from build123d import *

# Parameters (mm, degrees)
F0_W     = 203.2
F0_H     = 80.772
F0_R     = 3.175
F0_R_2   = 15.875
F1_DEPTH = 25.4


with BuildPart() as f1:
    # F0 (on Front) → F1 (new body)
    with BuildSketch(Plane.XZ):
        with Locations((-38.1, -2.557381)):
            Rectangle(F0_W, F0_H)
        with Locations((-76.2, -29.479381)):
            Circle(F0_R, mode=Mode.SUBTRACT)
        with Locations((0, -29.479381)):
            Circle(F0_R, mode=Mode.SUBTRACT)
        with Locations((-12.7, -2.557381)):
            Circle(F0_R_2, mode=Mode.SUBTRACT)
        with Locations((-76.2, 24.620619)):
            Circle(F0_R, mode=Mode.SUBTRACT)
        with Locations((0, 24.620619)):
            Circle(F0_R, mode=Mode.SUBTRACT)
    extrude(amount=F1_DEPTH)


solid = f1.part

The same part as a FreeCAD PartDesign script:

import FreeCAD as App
import Part
import Sketcher

V = App.Vector
Q = App.Units.Quantity


def add_polygon(sketch, points):
    """Adds a closed chain of lines whose ends are joined by coincident constraints."""
    first, n = sketch.GeometryCount, len(points)
    for a, b in zip(points, points[1:] + points[:1]):
        sketch.addGeometry(Part.LineSegment(App.Vector(*a, 0), App.Vector(*b, 0)), False)
    for i in range(n):
        sketch.addConstraint(Sketcher.Constraint("Coincident", first + i, 2, first + (i + 1) % n, 1))

doc = App.newDocument("Part")
body = doc.addObject("PartDesign::Body", "Body")

sketch1 = body.newObject("Sketcher::SketchObject", "Sketch")
sketch1.AttachmentSupport = (doc.getObject("XZ_Plane"), [""])
sketch1.MapMode = "FlatFace"
add_polygon(sketch1, [(-139.7, 37.8), (-139.7, -42.9), (63.5, -42.9), (63.5, 37.8)])
sketch1.addGeometry(Part.Circle(V(-76.2, -29.5, 0), V(0, 0, 1), 3.2), False)
sketch1.addGeometry(Part.Circle(V(0, -29.5, 0), V(0, 0, 1), 3.2), False)
sketch1.addGeometry(Part.Circle(V(-12.7, -2.6, 0), V(0, 0, 1), 15.9), False)
sketch1.addGeometry(Part.Circle(V(-76.2, 24.6, 0), V(0, 0, 1), 3.2), False)
sketch1.addGeometry(Part.Circle(V(0, 24.6, 0), V(0, 0, 1), 3.2), False)
sketch1.addConstraint([
    Sketcher.Constraint("Vertical", 0),
    Sketcher.Constraint("Horizontal", 1),
    Sketcher.Constraint("Vertical", 2),
    Sketcher.Constraint("Horizontal", 3),
    Sketcher.Constraint("Equal", 4, 5),
    Sketcher.Constraint("Equal", 5, 7),
    Sketcher.Constraint("Equal", 7, 8),
    Sketcher.Constraint("PointOnObject", 5, 3, -2),
    Sketcher.Constraint("PointOnObject", 8, 3, -2),
    Sketcher.Constraint("Horizontal", 4, 3, 5, 3),
    Sketcher.Constraint("Horizontal", 7, 3, 8, 3),
    Sketcher.Constraint("Vertical", 4, 3, 7, 3),
    Sketcher.Constraint("Diameter", 4, Q("0.25 in")),
    Sketcher.Constraint("Diameter", 6, Q("1.25 in")),
    Sketcher.Constraint("DistanceX", 1, 1, 1, 2, Q("8 in")),
    Sketcher.Constraint("DistanceX", 4, 3, -1, 1, Q("3 in")),
    Sketcher.Constraint("DistanceX", 0, 2, 6, 3, Q("5 in")),
    Sketcher.Constraint("DistanceY", 0, 2, 0, 1, Q("3.18 in")),
    Sketcher.Constraint("DistanceX", 6, 3, -1, 1, Q("0.5 in")),
    Sketcher.Constraint("DistanceY", 6, 3, 7, 3, Q("1.07 in")),
    Sketcher.Constraint("DistanceY", 0, 2, 7, 3, Q("2.66 in")),
    Sketcher.Constraint("DistanceY", 5, 3, 6, 3, 26.922),
    Sketcher.Constraint("DistanceY", 4, 3, -1, 1, 29.479381),
])
pad1 = body.newObject("PartDesign::Pad", "Pad")
pad1.Profile = sketch1
pad1.Length = Q("1 in")

doc.recompute()
